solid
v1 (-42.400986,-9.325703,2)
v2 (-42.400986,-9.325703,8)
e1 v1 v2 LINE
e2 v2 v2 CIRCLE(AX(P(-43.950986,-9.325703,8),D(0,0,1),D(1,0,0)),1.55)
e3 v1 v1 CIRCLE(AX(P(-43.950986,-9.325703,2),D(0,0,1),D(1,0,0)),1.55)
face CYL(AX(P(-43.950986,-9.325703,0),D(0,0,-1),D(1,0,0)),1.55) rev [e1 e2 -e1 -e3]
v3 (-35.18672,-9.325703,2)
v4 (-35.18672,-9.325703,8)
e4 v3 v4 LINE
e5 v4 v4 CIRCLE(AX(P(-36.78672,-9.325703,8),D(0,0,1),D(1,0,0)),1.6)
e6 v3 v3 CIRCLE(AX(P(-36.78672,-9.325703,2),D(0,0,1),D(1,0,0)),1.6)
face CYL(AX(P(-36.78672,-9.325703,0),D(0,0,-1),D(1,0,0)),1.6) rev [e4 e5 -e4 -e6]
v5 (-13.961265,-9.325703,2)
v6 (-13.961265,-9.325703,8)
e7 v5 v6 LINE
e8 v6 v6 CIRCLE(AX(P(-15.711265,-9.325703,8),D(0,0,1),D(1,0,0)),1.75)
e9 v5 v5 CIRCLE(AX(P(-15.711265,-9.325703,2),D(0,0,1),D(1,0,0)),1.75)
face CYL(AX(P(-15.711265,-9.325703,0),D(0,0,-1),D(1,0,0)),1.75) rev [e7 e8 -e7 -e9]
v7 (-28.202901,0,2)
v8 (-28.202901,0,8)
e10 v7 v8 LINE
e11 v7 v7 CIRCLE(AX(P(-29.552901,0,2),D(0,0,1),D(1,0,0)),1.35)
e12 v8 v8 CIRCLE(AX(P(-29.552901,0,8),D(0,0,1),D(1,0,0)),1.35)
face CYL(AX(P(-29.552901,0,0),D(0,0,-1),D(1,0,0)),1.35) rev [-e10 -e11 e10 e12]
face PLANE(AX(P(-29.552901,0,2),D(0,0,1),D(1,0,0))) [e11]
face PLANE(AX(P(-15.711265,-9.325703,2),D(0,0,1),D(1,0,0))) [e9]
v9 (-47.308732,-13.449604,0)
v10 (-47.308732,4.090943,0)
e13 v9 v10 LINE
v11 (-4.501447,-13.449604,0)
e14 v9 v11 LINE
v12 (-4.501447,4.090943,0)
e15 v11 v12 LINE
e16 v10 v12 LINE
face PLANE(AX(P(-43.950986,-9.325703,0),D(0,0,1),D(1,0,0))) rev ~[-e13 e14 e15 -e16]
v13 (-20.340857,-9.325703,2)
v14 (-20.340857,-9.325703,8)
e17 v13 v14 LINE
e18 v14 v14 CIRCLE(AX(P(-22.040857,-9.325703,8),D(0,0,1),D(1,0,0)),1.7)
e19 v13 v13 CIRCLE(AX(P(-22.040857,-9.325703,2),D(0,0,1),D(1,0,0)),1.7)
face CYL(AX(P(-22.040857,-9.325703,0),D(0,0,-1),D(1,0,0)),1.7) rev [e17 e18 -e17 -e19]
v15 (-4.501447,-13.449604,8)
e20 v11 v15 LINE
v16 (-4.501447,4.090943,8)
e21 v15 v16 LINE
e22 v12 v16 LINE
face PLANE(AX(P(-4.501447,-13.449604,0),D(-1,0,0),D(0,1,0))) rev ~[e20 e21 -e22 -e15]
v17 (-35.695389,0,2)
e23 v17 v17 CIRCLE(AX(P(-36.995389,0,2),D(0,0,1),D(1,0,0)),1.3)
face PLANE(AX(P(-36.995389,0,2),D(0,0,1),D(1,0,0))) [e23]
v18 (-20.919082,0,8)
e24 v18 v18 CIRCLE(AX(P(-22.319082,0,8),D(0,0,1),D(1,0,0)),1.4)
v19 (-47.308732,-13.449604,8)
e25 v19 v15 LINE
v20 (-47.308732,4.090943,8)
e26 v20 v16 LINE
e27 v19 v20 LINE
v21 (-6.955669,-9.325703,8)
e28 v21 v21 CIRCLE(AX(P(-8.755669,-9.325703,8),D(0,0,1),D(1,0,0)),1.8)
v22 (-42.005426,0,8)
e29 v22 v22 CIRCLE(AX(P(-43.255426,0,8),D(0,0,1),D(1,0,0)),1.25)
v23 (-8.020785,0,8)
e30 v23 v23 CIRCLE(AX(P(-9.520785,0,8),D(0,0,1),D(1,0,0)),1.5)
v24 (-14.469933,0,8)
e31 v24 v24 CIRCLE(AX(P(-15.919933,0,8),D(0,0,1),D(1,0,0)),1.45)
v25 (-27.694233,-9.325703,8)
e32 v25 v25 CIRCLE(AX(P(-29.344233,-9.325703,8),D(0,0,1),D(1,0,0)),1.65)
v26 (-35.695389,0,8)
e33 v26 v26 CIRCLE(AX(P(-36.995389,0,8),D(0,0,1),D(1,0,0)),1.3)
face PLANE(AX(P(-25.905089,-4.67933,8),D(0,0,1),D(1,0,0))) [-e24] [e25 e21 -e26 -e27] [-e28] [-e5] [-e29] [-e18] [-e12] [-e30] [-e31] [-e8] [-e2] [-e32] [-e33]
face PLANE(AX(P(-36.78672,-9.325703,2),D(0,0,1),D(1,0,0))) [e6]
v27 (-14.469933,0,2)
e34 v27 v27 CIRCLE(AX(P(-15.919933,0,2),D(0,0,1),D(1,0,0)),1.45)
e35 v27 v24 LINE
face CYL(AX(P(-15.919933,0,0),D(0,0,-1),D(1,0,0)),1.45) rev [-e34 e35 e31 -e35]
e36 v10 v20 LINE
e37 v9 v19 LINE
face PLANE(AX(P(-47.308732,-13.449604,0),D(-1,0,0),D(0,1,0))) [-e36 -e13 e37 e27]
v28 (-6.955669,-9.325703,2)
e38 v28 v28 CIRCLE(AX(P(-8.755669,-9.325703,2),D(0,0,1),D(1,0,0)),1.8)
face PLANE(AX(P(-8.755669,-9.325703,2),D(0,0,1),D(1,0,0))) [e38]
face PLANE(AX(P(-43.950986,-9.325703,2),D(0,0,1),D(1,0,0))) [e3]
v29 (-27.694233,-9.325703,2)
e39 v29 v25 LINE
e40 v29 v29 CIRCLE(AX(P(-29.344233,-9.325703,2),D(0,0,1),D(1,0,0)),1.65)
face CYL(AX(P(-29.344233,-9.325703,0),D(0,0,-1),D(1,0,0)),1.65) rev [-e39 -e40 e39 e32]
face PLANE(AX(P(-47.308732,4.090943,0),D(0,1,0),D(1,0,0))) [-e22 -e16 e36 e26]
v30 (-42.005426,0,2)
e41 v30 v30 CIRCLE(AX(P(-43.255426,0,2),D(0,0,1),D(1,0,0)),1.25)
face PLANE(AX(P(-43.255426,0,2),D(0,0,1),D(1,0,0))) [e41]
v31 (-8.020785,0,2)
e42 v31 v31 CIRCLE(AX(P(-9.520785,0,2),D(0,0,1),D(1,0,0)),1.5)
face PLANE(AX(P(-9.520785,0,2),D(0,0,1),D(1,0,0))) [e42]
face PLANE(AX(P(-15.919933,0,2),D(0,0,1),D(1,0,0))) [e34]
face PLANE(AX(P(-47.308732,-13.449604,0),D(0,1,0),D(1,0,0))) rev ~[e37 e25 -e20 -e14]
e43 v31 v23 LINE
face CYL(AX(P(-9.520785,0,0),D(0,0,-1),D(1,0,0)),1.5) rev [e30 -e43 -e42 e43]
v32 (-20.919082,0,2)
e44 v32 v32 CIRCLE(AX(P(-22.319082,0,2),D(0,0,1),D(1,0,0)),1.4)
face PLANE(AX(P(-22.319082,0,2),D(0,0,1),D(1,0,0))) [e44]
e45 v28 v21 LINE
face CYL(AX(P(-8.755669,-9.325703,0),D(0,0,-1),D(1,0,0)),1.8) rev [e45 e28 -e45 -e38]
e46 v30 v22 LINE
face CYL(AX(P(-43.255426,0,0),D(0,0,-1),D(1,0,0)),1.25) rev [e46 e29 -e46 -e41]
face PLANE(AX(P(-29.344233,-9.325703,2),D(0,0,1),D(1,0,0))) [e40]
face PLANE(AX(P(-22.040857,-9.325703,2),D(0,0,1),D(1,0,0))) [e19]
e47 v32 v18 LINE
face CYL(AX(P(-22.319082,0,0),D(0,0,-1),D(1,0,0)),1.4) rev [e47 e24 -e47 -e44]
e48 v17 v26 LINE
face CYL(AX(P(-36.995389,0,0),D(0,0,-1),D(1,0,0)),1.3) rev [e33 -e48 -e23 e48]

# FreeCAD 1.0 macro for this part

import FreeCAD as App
import Part
import Sketcher
from FreeCAD import Vector
Q = App.Units.Quantity


def add_polygon(sketch, points):
    """Adds a closed chain of lines whose ends are joined by coincident constraints."""
    first, n = sketch.GeometryCount, len(points)
    for a, b in zip(points, points[1:] + points[:1]):
        sketch.addGeometry(Part.LineSegment(App.Vector(*a, 0), App.Vector(*b, 0)), False)
    for i in range(n):
        sketch.addConstraint(Sketcher.Constraint("Coincident", first + i, 2, first + (i + 1) % n, 1))

doc = App.newDocument("Part")
body = doc.addObject("PartDesign::Body", "Body")

sketch1 = body.newObject("Sketcher::SketchObject", "Sketch")
sketch1.AttachmentSupport = (doc.getObject("XY_Plane"), [""])
sketch1.MapMode = "FlatFace"
add_polygon(sketch1, [(-47.3, 4.1), (-47.3, -13.4), (-4.5, -13.4), (-4.5, 4.1)])
sketch1.addGeometry(Part.Circle(Vector(-44, -9.3, 0), Vector(0, 0, 1), 1.6), False)
sketch1.addGeometry(Part.Circle(Vector(-36.8, -9.3, 0), Vector(0, 0, 1), 1.6), False)
sketch1.addGeometry(Part.Circle(Vector(-29.3, -9.3, 0), Vector(0, 0, 1), 1.6), False)
sketch1.addGeometry(Part.Circle(Vector(-22, -9.3, 0), Vector(0, 0, 1), 1.7), False)
sketch1.addGeometry(Part.Circle(Vector(-15.7, -9.3, 0), Vector(0, 0, 1), 1.8), False)
sketch1.addGeometry(Part.Circle(Vector(-8.8, -9.3, 0), Vector(0, 0, 1), 1.8), False)
sketch1.addGeometry(Part.Circle(Vector(-43.3, 0, 0), Vector(0, 0, 1), 1.2), False)
sketch1.addGeometry(Part.Circle(Vector(-37, 0, 0), Vector(0, 0, 1), 1.3), False)
sketch1.addGeometry(Part.Circle(Vector(-29.6, 0, 0), Vector(0, 0, 1), 1.4), False)
sketch1.addGeometry(Part.Circle(Vector(-22.3, 0, 0), Vector(0, 0, 1), 1.4), False)
sketch1.addGeometry(Part.Circle(Vector(-15.9, 0, 0), Vector(0, 0, 1), 1.4), False)
sketch1.addGeometry(Part.Circle(Vector(-9.5, 0, 0), Vector(0, 0, 1), 1.5), False)
sketch1.addConstraint([
    Sketcher.Constraint("Vertical", 0),
    Sketcher.Constraint("Horizontal", 1),
    Sketcher.Constraint("Vertical", 2),
    Sketcher.Constraint("Horizontal", 3),
    Sketcher.Constraint("PointOnObject", 10, 3, -1),
    Sketcher.Constraint("PointOnObject", 11, 3, -1),
    Sketcher.Constraint("PointOnObject", 12, 3, -1),
    Sketcher.Constraint("PointOnObject", 13, 3, -1),
    Sketcher.Constraint("PointOnObject", 14, 3, -1),
    Sketcher.Constraint("PointOnObject", 15, 3, -1),
    Sketcher.Constraint("Horizontal", 4, 3, 5, 3),
    Sketcher.Constraint("Horizontal", 5, 3, 6, 3),
    Sketcher.Constraint("Horizontal", 6, 3, 7, 3),
    Sketcher.Constraint("Horizontal", 7, 3, 8, 3),
    Sketcher.Constraint("Horizontal", 8, 3, 9, 3),
    Sketcher.Constraint("Diameter", 15, Q("3 mm")),
    Sketcher.Constraint("Diameter", 4, Q("3.1 mm")),
    Sketcher.Constraint("Diameter", 5, Q("3.2 mm")),
    Sketcher.Constraint("Diameter", 6, Q("3.3 mm")),
    Sketcher.Constraint("Diameter", 7, Q("3.4 mm")),
    Sketcher.Constraint("Diameter", 8, Q("3.5 mm")),
    Sketcher.Constraint("Diameter", 9, Q("3.6 mm")),
    Sketcher.Constraint("Diameter", 10, Q("2.5 mm")),
    Sketcher.Constraint("Diameter", 11, Q("2.6 mm")),
    Sketcher.Constraint("Diameter", 12, Q("2.7 mm")),
    Sketcher.Constraint("Diameter", 13, Q("2.8 mm")),
    Sketcher.Constraint("Diameter", 14, Q("2.9 mm")),
    Sketcher.Constraint("DistanceX", 12, 3, -1, 1, Q("29.552901 mm")),
    Sketcher.Constraint("DistanceY", 0, 2, 4, 3, Q("4.1239 mm")),
    Sketcher.Constraint("DistanceX", 0, 2, 6, 3, Q("17.964499 mm")),
    Sketcher.Constraint("DistanceX", 1, 1, 1, 2, Q("42.807285 mm")),
    Sketcher.Constraint("DistanceY", 0, 2, 0, 1, Q("17.540547 mm")),
    Sketcher.Constraint("DistanceX", 5, 3, -1, 1, Q("36.78672 mm")),
    Sketcher.Constraint("DistanceX", 9, 3, -1, 1, Q("8.755669 mm")),
    Sketcher.Constraint("DistanceX", 11, 3, -1, 1, Q("36.995389 mm")),
    Sketcher.Constraint("DistanceX", 0, 2, -1, 1, Q("47.308732 mm")),
    Sketcher.Constraint("DistanceX", 4, 3, 7, 3, Q("21.910129 mm")),
    Sketcher.Constraint("DistanceX", 4, 3, 8, 3, Q("28.239721 mm")),
    Sketcher.Constraint("DistanceX", 4, 3, 10, 3, Q("0.69556 mm")),
    Sketcher.Constraint("DistanceX", 12, 3, 13, 3, Q("7.233819 mm")),
    Sketcher.Constraint("DistanceX", 13, 3, 14, 3, Q("6.399149 mm")),
    Sketcher.Constraint("DistanceX", 14, 3, 8, 3, Q("0.208668 mm")),
    Sketcher.Constraint("DistanceX", 14, 3, 15, 3, Q("6.399148 mm")),
    Sketcher.Constraint("DistanceY", 4, 3, -1, 1, Q("9.325703 mm")),
])
pad1 = body.newObject("PartDesign::Pad", "Pad")
pad1.Profile = sketch1
pad1.Length = 8

sketch2 = body.newObject("Sketcher::SketchObject", "Sketch001")
sketch2.AttachmentSupport = (doc.getObject("XY_Plane"), [""])
sketch2.MapMode = "FlatFace"
sketch2.addGeometry([
    Part.Circle(Vector(-44, -9.3, 0), Vector(0, 0, 1), 1.6),
    Part.Circle(Vector(-36.8, -9.3, 0), Vector(0, 0, 1), 1.6),
    Part.Circle(Vector(-29.3, -9.3, 0), Vector(0, 0, 1), 1.6),
    Part.Circle(Vector(-22, -9.3, 0), Vector(0, 0, 1), 1.7),
    Part.Circle(Vector(-15.7, -9.3, 0), Vector(0, 0, 1), 1.8),
    Part.Circle(Vector(-8.8, -9.3, 0), Vector(0, 0, 1), 1.8),
    Part.Circle(Vector(-9.5, 0, 0), Vector(0, 0, 1), 1.5),
    Part.Circle(Vector(-15.9, 0, 0), Vector(0, 0, 1), 1.4),
    Part.Circle(Vector(-22.3, 0, 0), Vector(0, 0, 1), 1.4),
    Part.Circle(Vector(-29.6, 0, 0), Vector(0, 0, 1), 1.4),
    Part.Circle(Vector(-37, 0, 0), Vector(0, 0, 1), 1.3),
    Part.Circle(Vector(-43.3, 0, 0), Vector(0, 0, 1), 1.2),
], False)
sketch2.addConstraint([
    Sketcher.Constraint("PointOnObject", 6, 3, -1),
    Sketcher.Constraint("PointOnObject", 7, 3, -1),
    Sketcher.Constraint("PointOnObject", 8, 3, -1),
    Sketcher.Constraint("PointOnObject", 9, 3, -1),
    Sketcher.Constraint("PointOnObject", 10, 3, -1),
    Sketcher.Constraint("PointOnObject", 11, 3, -1),
    Sketcher.Constraint("Horizontal", 0, 3, 1, 3),
    Sketcher.Constraint("Horizontal", 1, 3, 2, 3),
    Sketcher.Constraint("Horizontal", 2, 3, 3, 3),
    Sketcher.Constraint("Horizontal", 3, 3, 4, 3),
    Sketcher.Constraint("Horizontal", 4, 3, 5, 3),
    Sketcher.Constraint("Diameter", 6, Q("3 mm")),
    Sketcher.Constraint("Diameter", 0, Q("3.1 mm")),
    Sketcher.Constraint("Diameter", 1, Q("3.2 mm")),
    Sketcher.Constraint("Diameter", 2, Q("3.3 mm")),
    Sketcher.Constraint("Diameter", 3, Q("3.4 mm")),
    Sketcher.Constraint("Diameter", 4, Q("3.5 mm")),
    Sketcher.Constraint("Diameter", 5, Q("3.6 mm")),
    Sketcher.Constraint("Diameter", 7, Q("2.9 mm")),
    Sketcher.Constraint("Diameter", 8, Q("2.8 mm")),
    Sketcher.Constraint("Diameter", 9, Q("2.7 mm")),
    Sketcher.Constraint("Diameter", 10, Q("2.6 mm")),
    Sketcher.Constraint("Diameter", 11, Q("2.5 mm")),
    Sketcher.Constraint("DistanceX", 9, 3, -1, 1, Q("29.552901 mm")),
    Sketcher.Constraint("DistanceX", 2, 3, 7, 3, Q("13.4243 mm")),
    Sketcher.Constraint("DistanceX", 1, 3, -1, 1, Q("36.78672 mm")),
    Sketcher.Constraint("DistanceX", 5, 3, -1, 1, Q("8.755669 mm")),
    Sketcher.Constraint("DistanceX", 10, 3, -1, 1, Q("36.995389 mm")),
    Sketcher.Constraint("DistanceX", 0, 3, 3, 3, Q("21.910129 mm")),
    Sketcher.Constraint("DistanceX", 0, 3, 4, 3, Q("28.239721 mm")),
    Sketcher.Constraint("DistanceX", 4, 3, 6, 3, Q("6.19048 mm")),
    Sketcher.Constraint("DistanceX", 7, 3, 6, 3, Q("6.399148 mm")),
    Sketcher.Constraint("DistanceX", 8, 3, 7, 3, Q("6.399149 mm")),
    Sketcher.Constraint("DistanceX", 9, 3, 8, 3, Q("7.233819 mm")),
    Sketcher.Constraint("DistanceX", 0, 3, 11, 3, Q("0.69556 mm")),
    Sketcher.Constraint("DistanceY", 0, 3, -1, 1, Q("9.325703 mm")),
])
pad2 = body.newObject("PartDesign::Pad", "Pad001")
pad2.Profile = sketch2
pad2.Length = 2

doc.recompute()
